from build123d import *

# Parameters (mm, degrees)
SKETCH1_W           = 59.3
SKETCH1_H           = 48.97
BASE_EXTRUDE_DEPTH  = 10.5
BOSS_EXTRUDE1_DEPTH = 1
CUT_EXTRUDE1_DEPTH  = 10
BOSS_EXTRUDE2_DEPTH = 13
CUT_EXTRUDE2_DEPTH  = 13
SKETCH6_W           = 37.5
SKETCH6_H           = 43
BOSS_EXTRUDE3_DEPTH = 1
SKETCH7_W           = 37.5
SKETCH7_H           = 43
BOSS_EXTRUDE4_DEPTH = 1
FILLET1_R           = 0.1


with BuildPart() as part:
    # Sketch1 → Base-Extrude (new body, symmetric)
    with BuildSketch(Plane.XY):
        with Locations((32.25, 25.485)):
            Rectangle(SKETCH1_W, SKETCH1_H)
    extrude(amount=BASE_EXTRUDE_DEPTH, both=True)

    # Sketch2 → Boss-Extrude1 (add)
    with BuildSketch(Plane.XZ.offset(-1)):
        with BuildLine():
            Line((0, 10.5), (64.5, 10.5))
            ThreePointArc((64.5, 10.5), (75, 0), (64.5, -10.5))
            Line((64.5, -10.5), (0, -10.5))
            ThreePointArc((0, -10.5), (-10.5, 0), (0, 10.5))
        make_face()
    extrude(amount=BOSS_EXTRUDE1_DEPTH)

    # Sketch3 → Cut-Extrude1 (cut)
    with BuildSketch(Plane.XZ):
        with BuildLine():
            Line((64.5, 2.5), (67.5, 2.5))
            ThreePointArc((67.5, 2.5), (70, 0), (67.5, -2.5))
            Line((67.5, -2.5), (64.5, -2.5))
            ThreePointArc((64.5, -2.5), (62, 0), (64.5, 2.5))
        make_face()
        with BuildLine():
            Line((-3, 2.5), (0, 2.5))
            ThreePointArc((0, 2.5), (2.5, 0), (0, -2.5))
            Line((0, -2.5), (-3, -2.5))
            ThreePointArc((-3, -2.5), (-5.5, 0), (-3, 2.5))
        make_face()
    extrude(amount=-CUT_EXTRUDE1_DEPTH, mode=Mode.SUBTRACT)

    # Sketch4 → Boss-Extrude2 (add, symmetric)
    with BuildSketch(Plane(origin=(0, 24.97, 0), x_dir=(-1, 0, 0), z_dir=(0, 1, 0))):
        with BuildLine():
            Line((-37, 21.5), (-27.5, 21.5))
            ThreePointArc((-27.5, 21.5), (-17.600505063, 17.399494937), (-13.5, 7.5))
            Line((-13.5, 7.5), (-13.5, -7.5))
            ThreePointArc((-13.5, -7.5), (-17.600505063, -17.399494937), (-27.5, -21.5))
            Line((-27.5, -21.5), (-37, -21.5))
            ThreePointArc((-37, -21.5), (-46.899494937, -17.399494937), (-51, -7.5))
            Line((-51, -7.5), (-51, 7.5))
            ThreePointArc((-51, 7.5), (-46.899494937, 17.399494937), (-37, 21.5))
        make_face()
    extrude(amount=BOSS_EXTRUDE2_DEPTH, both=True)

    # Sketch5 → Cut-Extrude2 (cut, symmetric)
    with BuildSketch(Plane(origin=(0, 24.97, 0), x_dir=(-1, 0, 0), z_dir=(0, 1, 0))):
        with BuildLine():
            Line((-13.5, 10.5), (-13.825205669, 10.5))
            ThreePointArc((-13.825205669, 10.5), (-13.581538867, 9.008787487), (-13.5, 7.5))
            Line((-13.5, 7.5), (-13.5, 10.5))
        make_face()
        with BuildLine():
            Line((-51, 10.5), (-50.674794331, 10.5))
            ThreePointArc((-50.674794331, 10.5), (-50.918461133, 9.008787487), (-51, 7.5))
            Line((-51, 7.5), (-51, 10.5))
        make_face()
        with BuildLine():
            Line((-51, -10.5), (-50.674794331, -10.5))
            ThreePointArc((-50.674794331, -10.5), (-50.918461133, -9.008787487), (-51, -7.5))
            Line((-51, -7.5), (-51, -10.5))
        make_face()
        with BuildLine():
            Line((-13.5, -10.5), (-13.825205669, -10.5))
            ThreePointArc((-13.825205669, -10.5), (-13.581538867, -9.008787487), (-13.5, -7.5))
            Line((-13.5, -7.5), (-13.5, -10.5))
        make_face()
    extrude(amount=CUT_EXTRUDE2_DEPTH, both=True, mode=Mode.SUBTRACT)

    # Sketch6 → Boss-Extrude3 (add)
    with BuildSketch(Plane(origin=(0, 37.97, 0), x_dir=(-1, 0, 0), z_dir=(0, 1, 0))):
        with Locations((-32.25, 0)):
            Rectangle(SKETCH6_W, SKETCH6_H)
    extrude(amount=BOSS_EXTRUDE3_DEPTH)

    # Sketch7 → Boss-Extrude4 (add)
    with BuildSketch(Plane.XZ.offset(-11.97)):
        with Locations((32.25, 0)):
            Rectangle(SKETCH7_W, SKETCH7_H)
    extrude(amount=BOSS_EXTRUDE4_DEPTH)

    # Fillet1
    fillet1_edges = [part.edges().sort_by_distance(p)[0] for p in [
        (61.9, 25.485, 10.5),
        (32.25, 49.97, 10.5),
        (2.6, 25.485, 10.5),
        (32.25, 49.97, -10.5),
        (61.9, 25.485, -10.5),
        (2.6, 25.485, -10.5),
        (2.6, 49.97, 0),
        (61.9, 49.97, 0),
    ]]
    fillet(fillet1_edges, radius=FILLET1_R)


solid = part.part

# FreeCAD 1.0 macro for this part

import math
import FreeCAD as App
import Part
import Sketcher
from FreeCAD import Vector
Q = App.Units.Quantity


def edges_at(feature, points):
    """Names of the edges that pass closest to the given points."""
    edges = feature.Shape.Edges
    near = lambda p: min(range(len(edges)), key=lambda i: edges[i].distToShape(Part.Vertex(*p))[0])
    return sorted({f"Edge{near(p) + 1}" for p in points})


def add_polygon(sketch, points):
    """Adds a closed chain of lines whose ends are joined by coincident constraints."""
    first, n = sketch.GeometryCount, len(points)
    for a, b in zip(points, points[1:] + points[:1]):
        sketch.addGeometry(Part.LineSegment(App.Vector(*a, 0), App.Vector(*b, 0)), False)
    for i in range(n):
        sketch.addConstraint(Sketcher.Constraint("Coincident", first + i, 2, first + (i + 1) % n, 1))

doc = App.newDocument("Part")
params = doc.addObject("Spreadsheet::Sheet", "Params")
for row, (alias, value) in enumerate([
    ("sketch1_width", "59.3 mm"),
    ("sketch1_height", "48.97 mm"),
    ("pad1_length", "21 mm"),
    ("sketch2_radius", "10.5 mm"),
    ("sketch2_width", "64.5 mm"),
    ("pad2_length", "1 mm"),
    ("sketch3_radius", "2.5 mm"),
    ("sketch3_width", "3 mm"),
    ("pocket1_length", "10 mm"),
    ("sketch4_radius", "14 mm"),
    ("sketch4_height", "15 mm"),
    ("sketch4_width", "9.5 mm"),
    ("pad3_length", "26 mm"),
    ("sketch5_radius", "14 mm"),
    ("sketch5_height", "3 mm"),
    ("pocket2_length", "26 mm"),
    ("sketch6_height", "43 mm"),
    ("sketch6_width", "37.5 mm"),
    ("pad4_length", "1 mm"),
    ("sketch7_height", "43 mm"),
    ("sketch7_width", "37.5 mm"),
    ("pad5_length", "1 mm"),
    ("fillet_radius", "0.1 mm"),
], start=1):
    params.set(f"A{row}", alias)
    params.set(f"B{row}", "=" + value)
    params.setAlias(f"B{row}", alias)

body = doc.addObject("PartDesign::Body", "Body")

# Sketch on XY plane
sketch1 = body.newObject("Sketcher::SketchObject", "Sketch")
sketch1.AttachmentSupport = (doc.getObject("XY_Plane"), [""])
sketch1.MapMode = "FlatFace"
add_polygon(sketch1, [(3, 50), (3, 1), (62, 1), (62, 50)])  # lines 0-3
sketch1.addConstraint(Sketcher.Constraint("Vertical", 0))
sketch1.addConstraint(Sketcher.Constraint("Horizontal", 1))
sketch1.addConstraint(Sketcher.Constraint("Vertical", 2))
sketch1.addConstraint(Sketcher.Constraint("Horizontal", 3))
sketch1.addConstraint(Sketcher.Constraint("DistanceX", 1, 1, 1, 2, Q("59.3 mm")))
sketch1.addConstraint(Sketcher.Constraint("DistanceY", -1, 1, 0, 2, Q("1 mm")))
sketch1.addConstraint(Sketcher.Constraint("DistanceY", 0, 2, 0, 1, Q("48.97 mm")))
sketch1.addConstraint(Sketcher.Constraint("DistanceX", -1, 1, 0, 2, Q("2.6 mm")))
sketch1.setExpression("Constraints[8]", "Params.sketch1_width")
sketch1.setExpression("Constraints[10]", "Params.sketch1_height")
pad1 = body.newObject("PartDesign::Pad", "Pad")
pad1.Profile = sketch1
pad1.setExpression("Length", "Params.pad1_length")
pad1.Midplane = True

# Sketch on XZ plane
sketch2 = body.newObject("Sketcher::SketchObject", "Sketch001")
sketch2.AttachmentSupport = (doc.getObject("XZ_Plane"), [""])
sketch2.MapMode = "FlatFace"
sketch2.AttachmentOffset = App.Placement(Vector(0, 0, -1), App.Rotation())
sketch2.addGeometry(Part.LineSegment(Vector(64, 10, 0), Vector(0, 10, 0)), False)
sketch2.addGeometry(Part.ArcOfCircle(Part.Circle(Vector(0, 0, 0), Vector(0, 0, 1), 10), math.radians(90), math.radians(270)), False)
sketch2.addGeometry(Part.LineSegment(Vector(0, -10, 0), Vector(64, -10, 0)), False)
sketch2.addGeometry(Part.ArcOfCircle(Part.Circle(Vector(64, 0, 0), Vector(0, 0, 1), 10), math.radians(-90), math.radians(90)), False)
sketch2.addConstraint(Sketcher.Constraint("Tangent", 0, 2, 1, 1))
sketch2.addConstraint(Sketcher.Constraint("Tangent", 1, 2, 2, 1))
sketch2.addConstraint(Sketcher.Constraint("Tangent", 2, 2, 3, 1))
sketch2.addConstraint(Sketcher.Constraint("Tangent", 3, 2, 0, 1))
sketch2.addConstraint(Sketcher.Constraint("Horizontal", 0))
sketch2.addConstraint(Sketcher.Constraint("Horizontal", 2))
sketch2.addConstraint(Sketcher.Constraint("Coincident", 1, 3, -1, 1))
sketch2.addConstraint(Sketcher.Constraint("Radius", 1, Q("10.5 mm")))
sketch2.addConstraint(Sketcher.Constraint("DistanceX", 0, 2, 0, 1, Q("64.5 mm")))
sketch2.setExpression("Constraints[7]", "Params.sketch2_radius")
sketch2.setExpression("Constraints[8]", "Params.sketch2_width")
pad2 = body.newObject("PartDesign::Pad", "Pad001")
pad2.Profile = sketch2
pad2.setExpression("Length", "Params.pad2_length")

# Sketch on XZ plane
sketch3 = body.newObject("Sketcher::SketchObject", "Sketch002")
sketch3.AttachmentSupport = (doc.getObject("XZ_Plane"), [""])
sketch3.MapMode = "FlatFace"
sketch3.addGeometry(Part.LineSegment(Vector(67.5, 2.5, 0), Vector(64.5, 2.5, 0)), False)
sketch3.addGeometry(Part.ArcOfCircle(Part.Circle(Vector(64.5, 0, 0), Vector(0, 0, 1), 2.5), math.radians(90), math.radians(270)), False)
sketch3.addGeometry(Part.LineSegment(Vector(64.5, -2.5, 0), Vector(67.5, -2.5, 0)), False)
sketch3.addGeometry(Part.ArcOfCircle(Part.Circle(Vector(67.5, 0, 0), Vector(0, 0, 1), 2.5), math.radians(-90), math.radians(90)), False)
sketch3.addGeometry(Part.LineSegment(Vector(0, 2.5, 0), Vector(-3, 2.5, 0)), False)
sketch3.addGeometry(Part.ArcOfCircle(Part.Circle(Vector(-3, 0, 0), Vector(0, 0, 1), 2.5), math.radians(90), math.radians(270)), False)
sketch3.addGeometry(Part.LineSegment(Vector(-3, -2.5, 0), Vector(0, -2.5, 0)), False)
sketch3.addGeometry(Part.ArcOfCircle(Part.Circle(Vector(0, 0, 0), Vector(0, 0, 1), 2.5), math.radians(-90), math.radians(90)), False)
sketch3.addConstraint(Sketcher.Constraint("Tangent", 0, 2, 1, 1))
sketch3.addConstraint(Sketcher.Constraint("Tangent", 1, 2, 2, 1))
sketch3.addConstraint(Sketcher.Constraint("Tangent", 2, 2, 3, 1))
sketch3.addConstraint(Sketcher.Constraint("Tangent", 3, 2, 0, 1))
sketch3.addConstraint(Sketcher.Constraint("Tangent", 4, 2, 5, 1))
sketch3.addConstraint(Sketcher.Constraint("Tangent", 5, 2, 6, 1))
sketch3.addConstraint(Sketcher.Constraint("Tangent", 6, 2, 7, 1))
sketch3.addConstraint(Sketcher.Constraint("Tangent", 7, 2, 4, 1))
sketch3.addConstraint(Sketcher.Constraint("Horizontal", 0))
sketch3.addConstraint(Sketcher.Constraint("Horizontal", 2))
sketch3.addConstraint(Sketcher.Constraint("Horizontal", 4))
sketch3.addConstraint(Sketcher.Constraint("Horizontal", 6))
sketch3.addConstraint(Sketcher.Constraint("Coincident", 7, 3, -1, 1))
sketch3.addConstraint(Sketcher.Constraint("Equal", 3, 5))
sketch3.addConstraint(Sketcher.Constraint("PointOnObject", 1, 3, -1))
sketch3.addConstraint(Sketcher.Constraint("Equal", 2, 4))
sketch3.addConstraint(Sketcher.Constraint("Radius", 1, Q("2.5 mm")))
sketch3.addConstraint(Sketcher.Constraint("DistanceX", 0, 2, 0, 1, Q("3 mm")))
sketch3.addConstraint(Sketcher.Constraint("DistanceX", -1, 1, 1, 3, Q("64.5 mm")))
sketch3.setExpression("Constraints[16]", "Params.sketch3_radius")
sketch3.setExpression("Constraints[17]", "Params.sketch3_width")
pocket1 = body.newObject("PartDesign::Pocket", "Pocket")
pocket1.Profile = sketch3
pocket1.setExpression("Length", "Params.pocket1_length")

# Sketch on XZ plane
sketch4 = body.newObject("Sketcher::SketchObject", "Sketch003")
sketch4.AttachmentSupport = (doc.getObject("XZ_Plane"), [""])
sketch4.MapMode = "FlatFace"
sketch4.AttachmentOffset = App.Placement(Vector(0, 0, -24.97), App.Rotation())
sketch4.addGeometry(Part.LineSegment(Vector(28, 22, 0), Vector(37, 22, 0)), False)
sketch4.addGeometry(Part.ArcOfCircle(Part.Circle(Vector(37, 8, 0), Vector(0, 0, 1), 14), math.radians(0), math.radians(90)), False)
sketch4.addGeometry(Part.LineSegment(Vector(51, 8, 0), Vector(51, -8, 0)), False)
sketch4.addGeometry(Part.ArcOfCircle(Part.Circle(Vector(37, -8, 0), Vector(0, 0, 1), 14), math.radians(-90), math.radians(0)), False)
sketch4.addGeometry(Part.LineSegment(Vector(37, -22, 0), Vector(28, -22, 0)), False)
sketch4.addGeometry(Part.ArcOfCircle(Part.Circle(Vector(27, -8, 0), Vector(0, 0, 1), 14), math.radians(180), math.radians(270)), False)
sketch4.addGeometry(Part.LineSegment(Vector(14, -8, 0), Vector(14, 8, 0)), False)
sketch4.addGeometry(Part.ArcOfCircle(Part.Circle(Vector(27, 8, 0), Vector(0, 0, 1), 14), math.radians(90), math.radians(180)), False)
sketch4.addConstraint(Sketcher.Constraint("Tangent", 0, 2, 1, 2))
sketch4.addConstraint(Sketcher.Constraint("Tangent", 1, 1, 2, 1))
sketch4.addConstraint(Sketcher.Constraint("Tangent", 2, 2, 3, 2))
sketch4.addConstraint(Sketcher.Constraint("Tangent", 3, 1, 4, 1))
sketch4.addConstraint(Sketcher.Constraint("Tangent", 4, 2, 5, 2))
sketch4.addConstraint(Sketcher.Constraint("Tangent", 5, 1, 6, 1))
sketch4.addConstraint(Sketcher.Constraint("Tangent", 6, 2, 7, 2))
sketch4.addConstraint(Sketcher.Constraint("Tangent", 7, 1, 0, 1))
sketch4.addConstraint(Sketcher.Constraint("Horizontal", 0))
sketch4.addConstraint(Sketcher.Constraint("Vertical", 2))
sketch4.addConstraint(Sketcher.Constraint("Horizontal", 4))
sketch4.addConstraint(Sketcher.Constraint("Vertical", 6))
sketch4.addConstraint(Sketcher.Constraint("Equal", 1, 3))
sketch4.addConstraint(Sketcher.Constraint("Equal", 3, 5))
sketch4.addConstraint(Sketcher.Constraint("Equal", 5, 7))
sketch4.addConstraint(Sketcher.Constraint("Radius", 1, Q("14 mm")))
sketch4.addConstraint(Sketcher.Constraint("DistanceY", 2, 2, 2, 1, Q("15 mm")))
sketch4.addConstraint(Sketcher.Constraint("DistanceX", 0, 1, 0, 2, Q("9.5 mm")))
sketch4.addConstraint(Sketcher.Constraint("DistanceX", -1, 1, 1, 3, Q("37 mm")))
sketch4.addConstraint(Sketcher.Constraint("DistanceY", -1, 1, 1, 3, Q("7.5 mm")))
sketch4.setExpression("Constraints[15]", "Params.sketch4_radius")
sketch4.setExpression("Constraints[16]", "Params.sketch4_height")
sketch4.setExpression("Constraints[17]", "Params.sketch4_width")
pad3 = body.newObject("PartDesign::Pad", "Pad002")
pad3.Profile = sketch4
pad3.setExpression("Length", "Params.pad3_length")
pad3.Midplane = True

# Sketch on XZ plane
sketch5 = body.newObject("Sketcher::SketchObject", "Sketch004")
sketch5.AttachmentSupport = (doc.getObject("XZ_Plane"), [""])
sketch5.MapMode = "FlatFace"
sketch5.AttachmentOffset = App.Placement(Vector(0, 0, -24.97), App.Rotation())
sketch5.addGeometry(Part.LineSegment(Vector(13.5, 10.5, 0), Vector(13.83, 10.5, 0)), False)
sketch5.addGeometry(Part.ArcOfCircle(Part.Circle(Vector(27.5, 7.5, 0), Vector(0, 0, 1), 14), math.radians(167.63), math.radians(180)), False)
sketch5.addGeometry(Part.LineSegment(Vector(13.5, 7.5, 0), Vector(13.5, 10.5, 0)), False)
sketch5.addGeometry(Part.LineSegment(Vector(50.67, 10.5, 0), Vector(51, 10.5, 0)), False)
sketch5.addGeometry(Part.LineSegment(Vector(51, 10.5, 0), Vector(51, 7.5, 0)), False)
sketch5.addGeometry(Part.ArcOfCircle(Part.Circle(Vector(37, 7.5, 0), Vector(0, 0, 1), 14), math.radians(0), math.radians(12.37)), False)
sketch5.addGeometry(Part.LineSegment(Vector(51, -10.5, 0), Vector(50.67, -10.5, 0)), False)
sketch5.addGeometry(Part.ArcOfCircle(Part.Circle(Vector(37, -7.5, 0), Vector(0, 0, 1), 14), math.radians(-12.37), math.radians(0)), False)
sketch5.addGeometry(Part.LineSegment(Vector(51, -7.5, 0), Vector(51, -10.5, 0)), False)
sketch5.addGeometry(Part.LineSegment(Vector(13.83, -10.5, 0), Vector(13.5, -10.5, 0)), False)
sketch5.addGeometry(Part.LineSegment(Vector(13.5, -10.5, 0), Vector(13.5, -7.5, 0)), False)
sketch5.addGeometry(Part.ArcOfCircle(Part.Circle(Vector(27.5, -7.5, 0), Vector(0, 0, 1), 14), math.radians(-180), math.radians(-167.63)), False)
sketch5.addConstraint(Sketcher.Constraint("Coincident", 0, 2, 1, 1))
sketch5.addConstraint(Sketcher.Constraint("Tangent", 1, 2, 2, 1))
sketch5.addConstraint(Sketcher.Constraint("Coincident", 2, 2, 0, 1))
sketch5.addConstraint(Sketcher.Constraint("Coincident", 3, 2, 4, 1))
sketch5.addConstraint(Sketcher.Constraint("Tangent", 4, 2, 5, 1))
sketch5.addConstraint(Sketcher.Constraint("Coincident", 5, 2, 3, 1))
sketch5.addConstraint(Sketcher.Constraint("Coincident", 6, 2, 7, 1))
sketch5.addConstraint(Sketcher.Constraint("Tangent", 7, 2, 8, 1))
sketch5.addConstraint(Sketcher.Constraint("Coincident", 8, 2, 6, 1))
sketch5.addConstraint(Sketcher.Constraint("Coincident", 9, 2, 10, 1))
sketch5.addConstraint(Sketcher.Constraint("Tangent", 10, 2, 11, 1))
sketch5.addConstraint(Sketcher.Constraint("Coincident", 11, 2, 9, 1))
sketch5.addConstraint(Sketcher.Constraint("Horizontal", 0))
sketch5.addConstraint(Sketcher.Constraint("Vertical", 2))
sketch5.addConstraint(Sketcher.Constraint("Horizontal", 3))
sketch5.addConstraint(Sketcher.Constraint("Vertical", 4))
sketch5.addConstraint(Sketcher.Constraint("Horizontal", 6))
sketch5.addConstraint(Sketcher.Constraint("Vertical", 8))
sketch5.addConstraint(Sketcher.Constraint("Horizontal", 9))
sketch5.addConstraint(Sketcher.Constraint("Vertical", 10))
sketch5.addConstraint(Sketcher.Constraint("Equal", 1, 5))
sketch5.addConstraint(Sketcher.Constraint("Equal", 5, 7))
sketch5.addConstraint(Sketcher.Constraint("Equal", 7, 11))
sketch5.addConstraint(Sketcher.Constraint("Symmetric", 5, 3, 7, 3, -1))
sketch5.addConstraint(Sketcher.Constraint("Symmetric", 1, 3, 11, 3, -1))
sketch5.addConstraint(Sketcher.Constraint("Horizontal", 1, 3, 5, 3))
sketch5.addConstraint(Sketcher.Constraint("Horizontal", 2, 2, 3, 2))
sketch5.addConstraint(Sketcher.Constraint("Horizontal", 8, 2, 9, 2))
sketch5.addConstraint(Sketcher.Constraint("Vertical", 5, 2, 6, 2))
sketch5.addConstraint(Sketcher.Constraint("Radius", 1, Q("14 mm")))
sketch5.addConstraint(Sketcher.Constraint("DistanceY", 2, 1, 2, 2, Q("3 mm")))
sketch5.addConstraint(Sketcher.Constraint("DistanceX", -1, 1, 5, 3, Q("37 mm")))
sketch5.addConstraint(Sketcher.Constraint("DistanceY", 7, 3, 5, 3, Q("15 mm")))
sketch5.addConstraint(Sketcher.Constraint("DistanceX", -1, 1, 1, 3, Q("27.5 mm")))
sketch5.setExpression("Constraints[29]", "Params.sketch5_radius")
sketch5.setExpression("Constraints[30]", "Params.sketch5_height")
pocket2 = body.newObject("PartDesign::Pocket", "Pocket001")
pocket2.Profile = sketch5
pocket2.setExpression("Length", "Params.pocket2_length")
pocket2.Midplane = True

# Sketch on XZ plane
sketch6 = body.newObject("Sketcher::SketchObject", "Sketch005")
sketch6.AttachmentSupport = (doc.getObject("XZ_Plane"), [""])
sketch6.MapMode = "FlatFace"
sketch6.AttachmentOffset = App.Placement(Vector(0, 0, -37.97), App.Rotation())
add_polygon(sketch6, [(51, 22), (51, -22), (14, -22), (14, 22)])  # lines 0-3
sketch6.addConstraint(Sketcher.Constraint("Vertical", 0))
sketch6.addConstraint(Sketcher.Constraint("Horizontal", 1))
sketch6.addConstraint(Sketcher.Constraint("Vertical", 2))
sketch6.addConstraint(Sketcher.Constraint("Horizontal", 3))
sketch6.addConstraint(Sketcher.Constraint("DistanceY", 0, 2, 0, 1, Q("43 mm")))
sketch6.addConstraint(Sketcher.Constraint("DistanceX", 1, 2, 1, 1, Q("37.5 mm")))
sketch6.addConstraint(Sketcher.Constraint("DistanceX", -1, 1, 0, 2, Q("51 mm")))
sketch6.addConstraint(Sketcher.Constraint("DistanceY", 0, 2, -1, 1, Q("21.5 mm")))
sketch6.setExpression("Constraints[8]", "Params.sketch6_height")
sketch6.setExpression("Constraints[9]", "Params.sketch6_width")
pad4 = body.newObject("PartDesign::Pad", "Pad003")
pad4.Profile = sketch6
pad4.setExpression("Length", "Params.pad4_length")
pad4.Reversed = True

# Sketch on XZ plane
sketch7 = body.newObject("Sketcher::SketchObject", "Sketch006")
sketch7.AttachmentSupport = (doc.getObject("XZ_Plane"), [""])
sketch7.MapMode = "FlatFace"
sketch7.AttachmentOffset = App.Placement(Vector(0, 0, -11.97), App.Rotation())
add_polygon(sketch7, [(14, 22), (14, -22), (51, -22), (51, 22)])  # lines 0-3
sketch7.addConstraint(Sketcher.Constraint("Vertical", 0))
sketch7.addConstraint(Sketcher.Constraint("Horizontal", 1))
sketch7.addConstraint(Sketcher.Constraint("Vertical", 2))
sketch7.addConstraint(Sketcher.Constraint("Horizontal", 3))
sketch7.addConstraint(Sketcher.Constraint("DistanceY", 0, 2, 0, 1, Q("43 mm")))
sketch7.addConstraint(Sketcher.Constraint("DistanceX", 1, 1, 1, 2, Q("37.5 mm")))
sketch7.addConstraint(Sketcher.Constraint("DistanceX", -1, 1, 1, 2, Q("51 mm")))
sketch7.addConstraint(Sketcher.Constraint("DistanceY", 0, 2, -1, 1, Q("21.5 mm")))
sketch7.setExpression("Constraints[8]", "Params.sketch7_height")
sketch7.setExpression("Constraints[9]", "Params.sketch7_width")
pad5 = body.newObject("PartDesign::Pad", "Pad004")
pad5.Profile = sketch7
pad5.setExpression("Length", "Params.pad5_length")
doc.recompute()

fillet = body.newObject("PartDesign::Fillet", "Fillet")
fillet.Base = (pad5, edges_at(pad5, [
    (61.9, 25.485, 10.5),
    (32.25, 49.97, 10.5),
    (2.6, 25.485, 10.5),
    (32.25, 49.97, -10.5),
    (61.9, 25.485, -10.5),
    (2.6, 25.485, -10.5),
    (2.6, 49.97, 0),
    (61.9, 49.97, 0),
]))
fillet.setExpression("Radius", "Params.fillet_radius")

doc.recompute()
